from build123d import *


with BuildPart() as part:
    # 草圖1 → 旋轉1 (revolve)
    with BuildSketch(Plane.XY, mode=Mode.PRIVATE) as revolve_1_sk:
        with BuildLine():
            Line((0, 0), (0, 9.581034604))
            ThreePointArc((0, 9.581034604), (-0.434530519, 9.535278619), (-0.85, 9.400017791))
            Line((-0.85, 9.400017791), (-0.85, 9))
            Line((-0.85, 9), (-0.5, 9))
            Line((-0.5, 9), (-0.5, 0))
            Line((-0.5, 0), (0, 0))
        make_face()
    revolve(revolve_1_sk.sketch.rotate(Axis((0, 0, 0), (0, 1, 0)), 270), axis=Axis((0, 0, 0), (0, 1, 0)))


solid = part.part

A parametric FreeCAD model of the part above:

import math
import FreeCAD as App
import Part
import Sketcher

V = App.Vector
Q = App.Units.Quantity

doc = App.newDocument("Part")
body = doc.addObject("PartDesign::Body", "Body")

# Sketch on XY plane
sketch1 = body.newObject("Sketcher::SketchObject", "Sketch")
sketch1.AttachmentSupport = (doc.getObject("XY_Plane"), [""])
sketch1.MapMode = "FlatFace"
sketch1.addGeometry([
    Part.LineSegment(V(0, 0, 0), V(0, 9.58, 0)),  # 0
    Part.ArcOfCircle(Part.Circle(V(0, 7.49, 0), V(0, 0, 1), 2.09), math.radians(90), math.radians(114)),  # 1
    Part.LineSegment(V(-0.85, 9.4, 0), V(-0.85, 9, 0)),  # 2
    Part.LineSegment(V(-0.85, 9, 0), V(-0.5, 9, 0)),  # 3
    Part.LineSegment(V(-0.5, 9, 0), V(-0.5, 0, 0)),  # 4
    Part.LineSegment(V(-0.5, 0, 0), V(0, 0, 0)),  # 5
], False)
sketch1.addConstraint([
    Sketcher.Constraint("Coincident", 0, 2, 1, 1),
    Sketcher.Constraint("Coincident", 1, 2, 2, 1),
    Sketcher.Constraint("Coincident", 2, 2, 3, 1),
    Sketcher.Constraint("Coincident", 3, 2, 4, 1),
    Sketcher.Constraint("Coincident", 4, 2, 5, 1),
    Sketcher.Constraint("Coincident", 5, 2, 0, 1),
    Sketcher.Constraint("Vertical", 0),
    Sketcher.Constraint("Vertical", 2),
    Sketcher.Constraint("Horizontal", 3),
    Sketcher.Constraint("Vertical", 4),
    Sketcher.Constraint("Horizontal", 5),
    Sketcher.Constraint("Coincident", 5, 2, -1, 1),
    Sketcher.Constraint("PointOnObject", 1, 3, -2),
    Sketcher.Constraint("DistanceY", 4, 2, 4, 1, Q("9 mm")),
    Sketcher.Constraint("DistanceX", 5, 1, 5, 2, Q("0.5 mm")),
    Sketcher.Constraint("DistanceX", 3, 1, 3, 2, Q("0.35 mm")),
    Sketcher.Constraint("Radius", 1, Q("2.086179 mm")),
    Sketcher.Constraint("DistanceY", 0, 1, 0, 2, Q("9.581035 mm")),
])
revolution = body.newObject("PartDesign::Revolution", "Revolution")
revolution.Profile = sketch1
revolution.ReferenceAxis = (sketch1, ["V_Axis"])
revolution.Angle = 360

doc.recompute()
